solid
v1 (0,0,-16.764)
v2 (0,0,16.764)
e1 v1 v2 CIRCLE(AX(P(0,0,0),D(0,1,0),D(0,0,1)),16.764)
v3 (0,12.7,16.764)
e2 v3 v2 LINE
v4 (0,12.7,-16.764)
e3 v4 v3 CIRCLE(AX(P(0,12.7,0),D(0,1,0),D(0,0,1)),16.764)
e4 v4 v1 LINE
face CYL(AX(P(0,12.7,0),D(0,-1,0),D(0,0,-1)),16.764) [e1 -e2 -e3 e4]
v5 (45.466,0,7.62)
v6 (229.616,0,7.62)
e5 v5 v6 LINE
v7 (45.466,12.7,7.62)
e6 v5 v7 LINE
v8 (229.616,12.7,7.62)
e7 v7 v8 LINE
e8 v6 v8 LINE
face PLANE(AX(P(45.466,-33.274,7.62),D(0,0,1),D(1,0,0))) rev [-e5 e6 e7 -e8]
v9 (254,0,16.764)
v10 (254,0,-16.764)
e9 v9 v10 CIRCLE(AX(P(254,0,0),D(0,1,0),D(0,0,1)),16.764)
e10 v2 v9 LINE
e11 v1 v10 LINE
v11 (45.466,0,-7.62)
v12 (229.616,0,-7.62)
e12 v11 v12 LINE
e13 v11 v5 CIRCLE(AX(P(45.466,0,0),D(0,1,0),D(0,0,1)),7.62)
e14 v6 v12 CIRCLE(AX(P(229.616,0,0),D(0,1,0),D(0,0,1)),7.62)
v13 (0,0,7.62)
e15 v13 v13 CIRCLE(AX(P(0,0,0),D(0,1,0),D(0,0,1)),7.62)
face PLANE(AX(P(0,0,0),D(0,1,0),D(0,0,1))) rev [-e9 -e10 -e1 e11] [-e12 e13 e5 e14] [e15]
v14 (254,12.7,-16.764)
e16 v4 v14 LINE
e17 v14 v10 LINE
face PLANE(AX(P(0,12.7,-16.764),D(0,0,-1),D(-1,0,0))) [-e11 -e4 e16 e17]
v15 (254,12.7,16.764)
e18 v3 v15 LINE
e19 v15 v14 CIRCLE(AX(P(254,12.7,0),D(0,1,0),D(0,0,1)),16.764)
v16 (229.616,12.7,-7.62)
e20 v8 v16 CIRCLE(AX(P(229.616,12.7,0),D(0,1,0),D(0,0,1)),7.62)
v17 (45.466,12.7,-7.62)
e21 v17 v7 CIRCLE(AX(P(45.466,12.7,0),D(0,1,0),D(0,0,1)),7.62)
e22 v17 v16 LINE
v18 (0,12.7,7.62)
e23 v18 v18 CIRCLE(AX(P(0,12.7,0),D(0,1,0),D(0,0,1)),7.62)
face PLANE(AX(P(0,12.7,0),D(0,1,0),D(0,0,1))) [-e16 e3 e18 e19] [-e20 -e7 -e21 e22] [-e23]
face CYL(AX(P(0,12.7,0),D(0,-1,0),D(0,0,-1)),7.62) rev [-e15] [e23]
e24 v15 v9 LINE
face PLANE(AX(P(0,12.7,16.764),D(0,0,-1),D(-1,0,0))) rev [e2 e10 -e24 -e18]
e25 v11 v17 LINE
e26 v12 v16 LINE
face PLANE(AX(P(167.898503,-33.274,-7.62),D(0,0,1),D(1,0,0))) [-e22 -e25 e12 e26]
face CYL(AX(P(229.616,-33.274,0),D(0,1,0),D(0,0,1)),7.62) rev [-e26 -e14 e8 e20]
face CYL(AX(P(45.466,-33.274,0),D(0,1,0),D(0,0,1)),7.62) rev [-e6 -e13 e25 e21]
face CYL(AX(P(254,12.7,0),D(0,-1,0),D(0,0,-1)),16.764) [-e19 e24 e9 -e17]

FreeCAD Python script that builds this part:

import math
import FreeCAD as App
import Part
import Sketcher
Q = App.Units.Quantity

doc = App.newDocument("Part")
body = doc.addObject("PartDesign::Body", "Body")

# Sketch on XZ plane
sketch1 = body.newObject("Sketcher::SketchObject", "Sketch")
sketch1.AttachmentSupport = (doc.getObject("XZ_Plane"), [""])
sketch1.MapMode = "FlatFace"
sketch1.addGeometry([
    Part.LineSegment(App.Vector(254, -16.764, 0), App.Vector(0, -16.764, 0)),  # 0
    Part.ArcOfCircle(Part.Circle(App.Vector(0, 0, 0), App.Vector(0, 0, 1), 16.764), math.radians(90), math.radians(270)),  # 1
    Part.LineSegment(App.Vector(0, 16.764, 0), App.Vector(254, 16.764, 0)),  # 2
    Part.ArcOfCircle(Part.Circle(App.Vector(254, 0, 0), App.Vector(0, 0, 1), 16.764), math.radians(-90), math.radians(90)),  # 3
    Part.Circle(App.Vector(0, 0, 0), App.Vector(0, 0, 1), 7.62),  # 4
], False)
sketch1.addConstraint([
    Sketcher.Constraint("Tangent", 0, 2, 1, 2),
    Sketcher.Constraint("Tangent", 1, 1, 2, 1),
    Sketcher.Constraint("Tangent", 2, 2, 3, 2),
    Sketcher.Constraint("Tangent", 3, 1, 0, 1),
    Sketcher.Constraint("Horizontal", 0),
    Sketcher.Constraint("Horizontal", 2),
    Sketcher.Constraint("Coincident", 1, 3, -1, 1),
    Sketcher.Constraint("Coincident", 4, 3, -1, 1),
    Sketcher.Constraint("Diameter", 4, Q("0.6 in")),
    Sketcher.Constraint("DistanceX", 0, 2, 0, 1, Q("10 in")),
    Sketcher.Constraint("Radius", 1, Q("0.66 in")),
])
pad1 = body.newObject("PartDesign::Pad", "Pad")
pad1.Profile = sketch1
pad1.Length = Q("0.5 in")
pad1.Reversed = True

# Sketch on XZ plane
sketch2 = body.newObject("Sketcher::SketchObject", "Sketch001")
sketch2.AttachmentSupport = (doc.getObject("XZ_Plane"), [""])
sketch2.MapMode = "FlatFace"
sketch2.AttachmentOffset = App.Placement(App.Vector(0, 0, -0.5 * 25.4), App.Rotation())
sketch2.addGeometry([
    Part.ArcOfCircle(Part.Circle(App.Vector(45.466, 0, 0), App.Vector(0, 0, 1), 7.62), math.radians(90), math.radians(270)),
    Part.LineSegment(App.Vector(45.466, 7.62, 0), App.Vector(229.616, 7.62, 0)),
    Part.ArcOfCircle(Part.Circle(App.Vector(229.616, 0, 0), App.Vector(0, 0, 1), 7.62), math.radians(-90), math.radians(90)),
    Part.LineSegment(App.Vector(229.616, -7.62, 0), App.Vector(45.466, -7.62, 0)),
], False)
sketch2.addConstraint([
    Sketcher.Constraint("Tangent", 0, 1, 1, 1),
    Sketcher.Constraint("Tangent", 1, 2, 2, 2),
    Sketcher.Constraint("Tangent", 2, 1, 3, 1),
    Sketcher.Constraint("Tangent", 3, 2, 0, 2),
    Sketcher.Constraint("Horizontal", 1),
    Sketcher.Constraint("Horizontal", 3),
    Sketcher.Constraint("PointOnObject", 0, 3, -1),
    Sketcher.Constraint("Radius", 0, Q("0.3 in")),
    Sketcher.Constraint("DistanceX", 1, 1, 1, 2, Q("7.25 in")),
    Sketcher.Constraint("DistanceX", -1, 1, 0, 3, Q("1.79 in")),
])
pocket1 = body.newObject("PartDesign::Pocket", "Pocket")
pocket1.Profile = sketch2
pocket1.Length = Q("1.81 in")
pocket1.Reversed = True

doc.recompute()
